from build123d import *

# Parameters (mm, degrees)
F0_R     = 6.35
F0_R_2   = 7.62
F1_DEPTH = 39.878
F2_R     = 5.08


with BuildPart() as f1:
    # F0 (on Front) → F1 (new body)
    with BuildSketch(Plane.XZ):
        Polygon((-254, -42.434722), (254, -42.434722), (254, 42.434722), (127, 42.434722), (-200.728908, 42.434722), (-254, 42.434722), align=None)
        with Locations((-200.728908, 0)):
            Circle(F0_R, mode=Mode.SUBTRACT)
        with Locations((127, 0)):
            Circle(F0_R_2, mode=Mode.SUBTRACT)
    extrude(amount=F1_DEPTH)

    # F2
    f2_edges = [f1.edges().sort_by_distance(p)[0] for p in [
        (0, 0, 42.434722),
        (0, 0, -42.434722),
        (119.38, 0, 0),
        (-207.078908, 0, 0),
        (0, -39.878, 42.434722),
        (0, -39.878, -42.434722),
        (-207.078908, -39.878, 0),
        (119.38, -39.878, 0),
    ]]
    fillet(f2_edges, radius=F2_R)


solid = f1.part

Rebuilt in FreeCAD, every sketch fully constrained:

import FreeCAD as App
import Part
import Sketcher

V = App.Vector
Q = App.Units.Quantity


def edges_at(feature, points):
    """Names of the edges that pass closest to the given points."""
    edges = feature.Shape.Edges
    near = lambda p: min(range(len(edges)), key=lambda i: edges[i].distToShape(Part.Vertex(*p))[0])
    return sorted({f"Edge{near(p) + 1}" for p in points})

doc = App.newDocument("Part")
body = doc.addObject("PartDesign::Body", "Body")

# Sketch on XZ plane
sketch1 = doc.addObject("Sketcher::SketchObject", "Sketch")
body.addObject(sketch1)
sketch1.AttachmentSupport = (doc.XZ_Plane, [""])
sketch1.MapMode = "FlatFace"
sketch1.addGeometry(Part.LineSegment(V(-254, -42.434722, 0), V(254, -42.434722, 0)), False)
sketch1.addGeometry(Part.LineSegment(V(254, -42.434722, 0), V(254, 42.434722, 0)), False)
sketch1.addGeometry(Part.LineSegment(V(254, 42.434722, 0), V(-254, 42.434722, 0)), False)
sketch1.addGeometry(Part.LineSegment(V(-254, 42.434722, 0), V(-254, -42.434722, 0)), False)
sketch1.addGeometry(Part.Circle(V(-200.728908, 0, 0), V(0, 0, 1), 6.35), False)
sketch1.addGeometry(Part.Circle(V(127, 0, 0), V(0, 0, 1), 7.62), False)
sketch1.addConstraint(Sketcher.Constraint("Coincident", 0, 2, 1, 1))
sketch1.addConstraint(Sketcher.Constraint("Coincident", 1, 2, 2, 1))
sketch1.addConstraint(Sketcher.Constraint("Coincident", 2, 2, 3, 1))
sketch1.addConstraint(Sketcher.Constraint("Coincident", 3, 2, 0, 1))
sketch1.addConstraint(Sketcher.Constraint("Horizontal", 0))
sketch1.addConstraint(Sketcher.Constraint("Vertical", 1))
sketch1.addConstraint(Sketcher.Constraint("Horizontal", 2))
sketch1.addConstraint(Sketcher.Constraint("Vertical", 3))
sketch1.addConstraint(Sketcher.Constraint("Symmetric", 0, 2, 2, 2, -1, 1))
sketch1.addConstraint(Sketcher.Constraint("PointOnObject", 4, 3, -1))
sketch1.addConstraint(Sketcher.Constraint("PointOnObject", 5, 3, -1))
sketch1.addConstraint(Sketcher.Constraint("Diameter", 4, Q("0.5 in")))
sketch1.addConstraint(Sketcher.Constraint("Diameter", 5, Q("0.6 in")))
sketch1.addConstraint(Sketcher.Constraint("DistanceX", 0, 1, 0, 2, Q("20 in")))
sketch1.addConstraint(Sketcher.Constraint("DistanceX", -1, 1, 5, 3, Q("5 in")))
sketch1.addConstraint(Sketcher.Constraint("DistanceY", 1, 1, 1, 2, 84.869444))
sketch1.addConstraint(Sketcher.Constraint("DistanceX", 4, 3, 5, 3, 327.728908))
pad1 = doc.addObject("PartDesign::Pad", "Pad")
body.addObject(pad1)
pad1.Profile = sketch1
pad1.Length = Q("1.57 in")
doc.recompute()

fillet = doc.addObject("PartDesign::Fillet", "Fillet")
body.addObject(fillet)
fillet.Base = (pad1, edges_at(pad1, [
    (0, 0, 42.435),
    (0, 0, -42.435),
    (119.38, 0, 0),
    (-207.079, 0, 0),
    (0, -39.878, 42.435),
    (0, -39.878, -42.435),
    (-207.079, -39.878, 0),
    (119.38, -39.878, 0),
]))
fillet.Radius = Q("0.2 in")

doc.recompute()
